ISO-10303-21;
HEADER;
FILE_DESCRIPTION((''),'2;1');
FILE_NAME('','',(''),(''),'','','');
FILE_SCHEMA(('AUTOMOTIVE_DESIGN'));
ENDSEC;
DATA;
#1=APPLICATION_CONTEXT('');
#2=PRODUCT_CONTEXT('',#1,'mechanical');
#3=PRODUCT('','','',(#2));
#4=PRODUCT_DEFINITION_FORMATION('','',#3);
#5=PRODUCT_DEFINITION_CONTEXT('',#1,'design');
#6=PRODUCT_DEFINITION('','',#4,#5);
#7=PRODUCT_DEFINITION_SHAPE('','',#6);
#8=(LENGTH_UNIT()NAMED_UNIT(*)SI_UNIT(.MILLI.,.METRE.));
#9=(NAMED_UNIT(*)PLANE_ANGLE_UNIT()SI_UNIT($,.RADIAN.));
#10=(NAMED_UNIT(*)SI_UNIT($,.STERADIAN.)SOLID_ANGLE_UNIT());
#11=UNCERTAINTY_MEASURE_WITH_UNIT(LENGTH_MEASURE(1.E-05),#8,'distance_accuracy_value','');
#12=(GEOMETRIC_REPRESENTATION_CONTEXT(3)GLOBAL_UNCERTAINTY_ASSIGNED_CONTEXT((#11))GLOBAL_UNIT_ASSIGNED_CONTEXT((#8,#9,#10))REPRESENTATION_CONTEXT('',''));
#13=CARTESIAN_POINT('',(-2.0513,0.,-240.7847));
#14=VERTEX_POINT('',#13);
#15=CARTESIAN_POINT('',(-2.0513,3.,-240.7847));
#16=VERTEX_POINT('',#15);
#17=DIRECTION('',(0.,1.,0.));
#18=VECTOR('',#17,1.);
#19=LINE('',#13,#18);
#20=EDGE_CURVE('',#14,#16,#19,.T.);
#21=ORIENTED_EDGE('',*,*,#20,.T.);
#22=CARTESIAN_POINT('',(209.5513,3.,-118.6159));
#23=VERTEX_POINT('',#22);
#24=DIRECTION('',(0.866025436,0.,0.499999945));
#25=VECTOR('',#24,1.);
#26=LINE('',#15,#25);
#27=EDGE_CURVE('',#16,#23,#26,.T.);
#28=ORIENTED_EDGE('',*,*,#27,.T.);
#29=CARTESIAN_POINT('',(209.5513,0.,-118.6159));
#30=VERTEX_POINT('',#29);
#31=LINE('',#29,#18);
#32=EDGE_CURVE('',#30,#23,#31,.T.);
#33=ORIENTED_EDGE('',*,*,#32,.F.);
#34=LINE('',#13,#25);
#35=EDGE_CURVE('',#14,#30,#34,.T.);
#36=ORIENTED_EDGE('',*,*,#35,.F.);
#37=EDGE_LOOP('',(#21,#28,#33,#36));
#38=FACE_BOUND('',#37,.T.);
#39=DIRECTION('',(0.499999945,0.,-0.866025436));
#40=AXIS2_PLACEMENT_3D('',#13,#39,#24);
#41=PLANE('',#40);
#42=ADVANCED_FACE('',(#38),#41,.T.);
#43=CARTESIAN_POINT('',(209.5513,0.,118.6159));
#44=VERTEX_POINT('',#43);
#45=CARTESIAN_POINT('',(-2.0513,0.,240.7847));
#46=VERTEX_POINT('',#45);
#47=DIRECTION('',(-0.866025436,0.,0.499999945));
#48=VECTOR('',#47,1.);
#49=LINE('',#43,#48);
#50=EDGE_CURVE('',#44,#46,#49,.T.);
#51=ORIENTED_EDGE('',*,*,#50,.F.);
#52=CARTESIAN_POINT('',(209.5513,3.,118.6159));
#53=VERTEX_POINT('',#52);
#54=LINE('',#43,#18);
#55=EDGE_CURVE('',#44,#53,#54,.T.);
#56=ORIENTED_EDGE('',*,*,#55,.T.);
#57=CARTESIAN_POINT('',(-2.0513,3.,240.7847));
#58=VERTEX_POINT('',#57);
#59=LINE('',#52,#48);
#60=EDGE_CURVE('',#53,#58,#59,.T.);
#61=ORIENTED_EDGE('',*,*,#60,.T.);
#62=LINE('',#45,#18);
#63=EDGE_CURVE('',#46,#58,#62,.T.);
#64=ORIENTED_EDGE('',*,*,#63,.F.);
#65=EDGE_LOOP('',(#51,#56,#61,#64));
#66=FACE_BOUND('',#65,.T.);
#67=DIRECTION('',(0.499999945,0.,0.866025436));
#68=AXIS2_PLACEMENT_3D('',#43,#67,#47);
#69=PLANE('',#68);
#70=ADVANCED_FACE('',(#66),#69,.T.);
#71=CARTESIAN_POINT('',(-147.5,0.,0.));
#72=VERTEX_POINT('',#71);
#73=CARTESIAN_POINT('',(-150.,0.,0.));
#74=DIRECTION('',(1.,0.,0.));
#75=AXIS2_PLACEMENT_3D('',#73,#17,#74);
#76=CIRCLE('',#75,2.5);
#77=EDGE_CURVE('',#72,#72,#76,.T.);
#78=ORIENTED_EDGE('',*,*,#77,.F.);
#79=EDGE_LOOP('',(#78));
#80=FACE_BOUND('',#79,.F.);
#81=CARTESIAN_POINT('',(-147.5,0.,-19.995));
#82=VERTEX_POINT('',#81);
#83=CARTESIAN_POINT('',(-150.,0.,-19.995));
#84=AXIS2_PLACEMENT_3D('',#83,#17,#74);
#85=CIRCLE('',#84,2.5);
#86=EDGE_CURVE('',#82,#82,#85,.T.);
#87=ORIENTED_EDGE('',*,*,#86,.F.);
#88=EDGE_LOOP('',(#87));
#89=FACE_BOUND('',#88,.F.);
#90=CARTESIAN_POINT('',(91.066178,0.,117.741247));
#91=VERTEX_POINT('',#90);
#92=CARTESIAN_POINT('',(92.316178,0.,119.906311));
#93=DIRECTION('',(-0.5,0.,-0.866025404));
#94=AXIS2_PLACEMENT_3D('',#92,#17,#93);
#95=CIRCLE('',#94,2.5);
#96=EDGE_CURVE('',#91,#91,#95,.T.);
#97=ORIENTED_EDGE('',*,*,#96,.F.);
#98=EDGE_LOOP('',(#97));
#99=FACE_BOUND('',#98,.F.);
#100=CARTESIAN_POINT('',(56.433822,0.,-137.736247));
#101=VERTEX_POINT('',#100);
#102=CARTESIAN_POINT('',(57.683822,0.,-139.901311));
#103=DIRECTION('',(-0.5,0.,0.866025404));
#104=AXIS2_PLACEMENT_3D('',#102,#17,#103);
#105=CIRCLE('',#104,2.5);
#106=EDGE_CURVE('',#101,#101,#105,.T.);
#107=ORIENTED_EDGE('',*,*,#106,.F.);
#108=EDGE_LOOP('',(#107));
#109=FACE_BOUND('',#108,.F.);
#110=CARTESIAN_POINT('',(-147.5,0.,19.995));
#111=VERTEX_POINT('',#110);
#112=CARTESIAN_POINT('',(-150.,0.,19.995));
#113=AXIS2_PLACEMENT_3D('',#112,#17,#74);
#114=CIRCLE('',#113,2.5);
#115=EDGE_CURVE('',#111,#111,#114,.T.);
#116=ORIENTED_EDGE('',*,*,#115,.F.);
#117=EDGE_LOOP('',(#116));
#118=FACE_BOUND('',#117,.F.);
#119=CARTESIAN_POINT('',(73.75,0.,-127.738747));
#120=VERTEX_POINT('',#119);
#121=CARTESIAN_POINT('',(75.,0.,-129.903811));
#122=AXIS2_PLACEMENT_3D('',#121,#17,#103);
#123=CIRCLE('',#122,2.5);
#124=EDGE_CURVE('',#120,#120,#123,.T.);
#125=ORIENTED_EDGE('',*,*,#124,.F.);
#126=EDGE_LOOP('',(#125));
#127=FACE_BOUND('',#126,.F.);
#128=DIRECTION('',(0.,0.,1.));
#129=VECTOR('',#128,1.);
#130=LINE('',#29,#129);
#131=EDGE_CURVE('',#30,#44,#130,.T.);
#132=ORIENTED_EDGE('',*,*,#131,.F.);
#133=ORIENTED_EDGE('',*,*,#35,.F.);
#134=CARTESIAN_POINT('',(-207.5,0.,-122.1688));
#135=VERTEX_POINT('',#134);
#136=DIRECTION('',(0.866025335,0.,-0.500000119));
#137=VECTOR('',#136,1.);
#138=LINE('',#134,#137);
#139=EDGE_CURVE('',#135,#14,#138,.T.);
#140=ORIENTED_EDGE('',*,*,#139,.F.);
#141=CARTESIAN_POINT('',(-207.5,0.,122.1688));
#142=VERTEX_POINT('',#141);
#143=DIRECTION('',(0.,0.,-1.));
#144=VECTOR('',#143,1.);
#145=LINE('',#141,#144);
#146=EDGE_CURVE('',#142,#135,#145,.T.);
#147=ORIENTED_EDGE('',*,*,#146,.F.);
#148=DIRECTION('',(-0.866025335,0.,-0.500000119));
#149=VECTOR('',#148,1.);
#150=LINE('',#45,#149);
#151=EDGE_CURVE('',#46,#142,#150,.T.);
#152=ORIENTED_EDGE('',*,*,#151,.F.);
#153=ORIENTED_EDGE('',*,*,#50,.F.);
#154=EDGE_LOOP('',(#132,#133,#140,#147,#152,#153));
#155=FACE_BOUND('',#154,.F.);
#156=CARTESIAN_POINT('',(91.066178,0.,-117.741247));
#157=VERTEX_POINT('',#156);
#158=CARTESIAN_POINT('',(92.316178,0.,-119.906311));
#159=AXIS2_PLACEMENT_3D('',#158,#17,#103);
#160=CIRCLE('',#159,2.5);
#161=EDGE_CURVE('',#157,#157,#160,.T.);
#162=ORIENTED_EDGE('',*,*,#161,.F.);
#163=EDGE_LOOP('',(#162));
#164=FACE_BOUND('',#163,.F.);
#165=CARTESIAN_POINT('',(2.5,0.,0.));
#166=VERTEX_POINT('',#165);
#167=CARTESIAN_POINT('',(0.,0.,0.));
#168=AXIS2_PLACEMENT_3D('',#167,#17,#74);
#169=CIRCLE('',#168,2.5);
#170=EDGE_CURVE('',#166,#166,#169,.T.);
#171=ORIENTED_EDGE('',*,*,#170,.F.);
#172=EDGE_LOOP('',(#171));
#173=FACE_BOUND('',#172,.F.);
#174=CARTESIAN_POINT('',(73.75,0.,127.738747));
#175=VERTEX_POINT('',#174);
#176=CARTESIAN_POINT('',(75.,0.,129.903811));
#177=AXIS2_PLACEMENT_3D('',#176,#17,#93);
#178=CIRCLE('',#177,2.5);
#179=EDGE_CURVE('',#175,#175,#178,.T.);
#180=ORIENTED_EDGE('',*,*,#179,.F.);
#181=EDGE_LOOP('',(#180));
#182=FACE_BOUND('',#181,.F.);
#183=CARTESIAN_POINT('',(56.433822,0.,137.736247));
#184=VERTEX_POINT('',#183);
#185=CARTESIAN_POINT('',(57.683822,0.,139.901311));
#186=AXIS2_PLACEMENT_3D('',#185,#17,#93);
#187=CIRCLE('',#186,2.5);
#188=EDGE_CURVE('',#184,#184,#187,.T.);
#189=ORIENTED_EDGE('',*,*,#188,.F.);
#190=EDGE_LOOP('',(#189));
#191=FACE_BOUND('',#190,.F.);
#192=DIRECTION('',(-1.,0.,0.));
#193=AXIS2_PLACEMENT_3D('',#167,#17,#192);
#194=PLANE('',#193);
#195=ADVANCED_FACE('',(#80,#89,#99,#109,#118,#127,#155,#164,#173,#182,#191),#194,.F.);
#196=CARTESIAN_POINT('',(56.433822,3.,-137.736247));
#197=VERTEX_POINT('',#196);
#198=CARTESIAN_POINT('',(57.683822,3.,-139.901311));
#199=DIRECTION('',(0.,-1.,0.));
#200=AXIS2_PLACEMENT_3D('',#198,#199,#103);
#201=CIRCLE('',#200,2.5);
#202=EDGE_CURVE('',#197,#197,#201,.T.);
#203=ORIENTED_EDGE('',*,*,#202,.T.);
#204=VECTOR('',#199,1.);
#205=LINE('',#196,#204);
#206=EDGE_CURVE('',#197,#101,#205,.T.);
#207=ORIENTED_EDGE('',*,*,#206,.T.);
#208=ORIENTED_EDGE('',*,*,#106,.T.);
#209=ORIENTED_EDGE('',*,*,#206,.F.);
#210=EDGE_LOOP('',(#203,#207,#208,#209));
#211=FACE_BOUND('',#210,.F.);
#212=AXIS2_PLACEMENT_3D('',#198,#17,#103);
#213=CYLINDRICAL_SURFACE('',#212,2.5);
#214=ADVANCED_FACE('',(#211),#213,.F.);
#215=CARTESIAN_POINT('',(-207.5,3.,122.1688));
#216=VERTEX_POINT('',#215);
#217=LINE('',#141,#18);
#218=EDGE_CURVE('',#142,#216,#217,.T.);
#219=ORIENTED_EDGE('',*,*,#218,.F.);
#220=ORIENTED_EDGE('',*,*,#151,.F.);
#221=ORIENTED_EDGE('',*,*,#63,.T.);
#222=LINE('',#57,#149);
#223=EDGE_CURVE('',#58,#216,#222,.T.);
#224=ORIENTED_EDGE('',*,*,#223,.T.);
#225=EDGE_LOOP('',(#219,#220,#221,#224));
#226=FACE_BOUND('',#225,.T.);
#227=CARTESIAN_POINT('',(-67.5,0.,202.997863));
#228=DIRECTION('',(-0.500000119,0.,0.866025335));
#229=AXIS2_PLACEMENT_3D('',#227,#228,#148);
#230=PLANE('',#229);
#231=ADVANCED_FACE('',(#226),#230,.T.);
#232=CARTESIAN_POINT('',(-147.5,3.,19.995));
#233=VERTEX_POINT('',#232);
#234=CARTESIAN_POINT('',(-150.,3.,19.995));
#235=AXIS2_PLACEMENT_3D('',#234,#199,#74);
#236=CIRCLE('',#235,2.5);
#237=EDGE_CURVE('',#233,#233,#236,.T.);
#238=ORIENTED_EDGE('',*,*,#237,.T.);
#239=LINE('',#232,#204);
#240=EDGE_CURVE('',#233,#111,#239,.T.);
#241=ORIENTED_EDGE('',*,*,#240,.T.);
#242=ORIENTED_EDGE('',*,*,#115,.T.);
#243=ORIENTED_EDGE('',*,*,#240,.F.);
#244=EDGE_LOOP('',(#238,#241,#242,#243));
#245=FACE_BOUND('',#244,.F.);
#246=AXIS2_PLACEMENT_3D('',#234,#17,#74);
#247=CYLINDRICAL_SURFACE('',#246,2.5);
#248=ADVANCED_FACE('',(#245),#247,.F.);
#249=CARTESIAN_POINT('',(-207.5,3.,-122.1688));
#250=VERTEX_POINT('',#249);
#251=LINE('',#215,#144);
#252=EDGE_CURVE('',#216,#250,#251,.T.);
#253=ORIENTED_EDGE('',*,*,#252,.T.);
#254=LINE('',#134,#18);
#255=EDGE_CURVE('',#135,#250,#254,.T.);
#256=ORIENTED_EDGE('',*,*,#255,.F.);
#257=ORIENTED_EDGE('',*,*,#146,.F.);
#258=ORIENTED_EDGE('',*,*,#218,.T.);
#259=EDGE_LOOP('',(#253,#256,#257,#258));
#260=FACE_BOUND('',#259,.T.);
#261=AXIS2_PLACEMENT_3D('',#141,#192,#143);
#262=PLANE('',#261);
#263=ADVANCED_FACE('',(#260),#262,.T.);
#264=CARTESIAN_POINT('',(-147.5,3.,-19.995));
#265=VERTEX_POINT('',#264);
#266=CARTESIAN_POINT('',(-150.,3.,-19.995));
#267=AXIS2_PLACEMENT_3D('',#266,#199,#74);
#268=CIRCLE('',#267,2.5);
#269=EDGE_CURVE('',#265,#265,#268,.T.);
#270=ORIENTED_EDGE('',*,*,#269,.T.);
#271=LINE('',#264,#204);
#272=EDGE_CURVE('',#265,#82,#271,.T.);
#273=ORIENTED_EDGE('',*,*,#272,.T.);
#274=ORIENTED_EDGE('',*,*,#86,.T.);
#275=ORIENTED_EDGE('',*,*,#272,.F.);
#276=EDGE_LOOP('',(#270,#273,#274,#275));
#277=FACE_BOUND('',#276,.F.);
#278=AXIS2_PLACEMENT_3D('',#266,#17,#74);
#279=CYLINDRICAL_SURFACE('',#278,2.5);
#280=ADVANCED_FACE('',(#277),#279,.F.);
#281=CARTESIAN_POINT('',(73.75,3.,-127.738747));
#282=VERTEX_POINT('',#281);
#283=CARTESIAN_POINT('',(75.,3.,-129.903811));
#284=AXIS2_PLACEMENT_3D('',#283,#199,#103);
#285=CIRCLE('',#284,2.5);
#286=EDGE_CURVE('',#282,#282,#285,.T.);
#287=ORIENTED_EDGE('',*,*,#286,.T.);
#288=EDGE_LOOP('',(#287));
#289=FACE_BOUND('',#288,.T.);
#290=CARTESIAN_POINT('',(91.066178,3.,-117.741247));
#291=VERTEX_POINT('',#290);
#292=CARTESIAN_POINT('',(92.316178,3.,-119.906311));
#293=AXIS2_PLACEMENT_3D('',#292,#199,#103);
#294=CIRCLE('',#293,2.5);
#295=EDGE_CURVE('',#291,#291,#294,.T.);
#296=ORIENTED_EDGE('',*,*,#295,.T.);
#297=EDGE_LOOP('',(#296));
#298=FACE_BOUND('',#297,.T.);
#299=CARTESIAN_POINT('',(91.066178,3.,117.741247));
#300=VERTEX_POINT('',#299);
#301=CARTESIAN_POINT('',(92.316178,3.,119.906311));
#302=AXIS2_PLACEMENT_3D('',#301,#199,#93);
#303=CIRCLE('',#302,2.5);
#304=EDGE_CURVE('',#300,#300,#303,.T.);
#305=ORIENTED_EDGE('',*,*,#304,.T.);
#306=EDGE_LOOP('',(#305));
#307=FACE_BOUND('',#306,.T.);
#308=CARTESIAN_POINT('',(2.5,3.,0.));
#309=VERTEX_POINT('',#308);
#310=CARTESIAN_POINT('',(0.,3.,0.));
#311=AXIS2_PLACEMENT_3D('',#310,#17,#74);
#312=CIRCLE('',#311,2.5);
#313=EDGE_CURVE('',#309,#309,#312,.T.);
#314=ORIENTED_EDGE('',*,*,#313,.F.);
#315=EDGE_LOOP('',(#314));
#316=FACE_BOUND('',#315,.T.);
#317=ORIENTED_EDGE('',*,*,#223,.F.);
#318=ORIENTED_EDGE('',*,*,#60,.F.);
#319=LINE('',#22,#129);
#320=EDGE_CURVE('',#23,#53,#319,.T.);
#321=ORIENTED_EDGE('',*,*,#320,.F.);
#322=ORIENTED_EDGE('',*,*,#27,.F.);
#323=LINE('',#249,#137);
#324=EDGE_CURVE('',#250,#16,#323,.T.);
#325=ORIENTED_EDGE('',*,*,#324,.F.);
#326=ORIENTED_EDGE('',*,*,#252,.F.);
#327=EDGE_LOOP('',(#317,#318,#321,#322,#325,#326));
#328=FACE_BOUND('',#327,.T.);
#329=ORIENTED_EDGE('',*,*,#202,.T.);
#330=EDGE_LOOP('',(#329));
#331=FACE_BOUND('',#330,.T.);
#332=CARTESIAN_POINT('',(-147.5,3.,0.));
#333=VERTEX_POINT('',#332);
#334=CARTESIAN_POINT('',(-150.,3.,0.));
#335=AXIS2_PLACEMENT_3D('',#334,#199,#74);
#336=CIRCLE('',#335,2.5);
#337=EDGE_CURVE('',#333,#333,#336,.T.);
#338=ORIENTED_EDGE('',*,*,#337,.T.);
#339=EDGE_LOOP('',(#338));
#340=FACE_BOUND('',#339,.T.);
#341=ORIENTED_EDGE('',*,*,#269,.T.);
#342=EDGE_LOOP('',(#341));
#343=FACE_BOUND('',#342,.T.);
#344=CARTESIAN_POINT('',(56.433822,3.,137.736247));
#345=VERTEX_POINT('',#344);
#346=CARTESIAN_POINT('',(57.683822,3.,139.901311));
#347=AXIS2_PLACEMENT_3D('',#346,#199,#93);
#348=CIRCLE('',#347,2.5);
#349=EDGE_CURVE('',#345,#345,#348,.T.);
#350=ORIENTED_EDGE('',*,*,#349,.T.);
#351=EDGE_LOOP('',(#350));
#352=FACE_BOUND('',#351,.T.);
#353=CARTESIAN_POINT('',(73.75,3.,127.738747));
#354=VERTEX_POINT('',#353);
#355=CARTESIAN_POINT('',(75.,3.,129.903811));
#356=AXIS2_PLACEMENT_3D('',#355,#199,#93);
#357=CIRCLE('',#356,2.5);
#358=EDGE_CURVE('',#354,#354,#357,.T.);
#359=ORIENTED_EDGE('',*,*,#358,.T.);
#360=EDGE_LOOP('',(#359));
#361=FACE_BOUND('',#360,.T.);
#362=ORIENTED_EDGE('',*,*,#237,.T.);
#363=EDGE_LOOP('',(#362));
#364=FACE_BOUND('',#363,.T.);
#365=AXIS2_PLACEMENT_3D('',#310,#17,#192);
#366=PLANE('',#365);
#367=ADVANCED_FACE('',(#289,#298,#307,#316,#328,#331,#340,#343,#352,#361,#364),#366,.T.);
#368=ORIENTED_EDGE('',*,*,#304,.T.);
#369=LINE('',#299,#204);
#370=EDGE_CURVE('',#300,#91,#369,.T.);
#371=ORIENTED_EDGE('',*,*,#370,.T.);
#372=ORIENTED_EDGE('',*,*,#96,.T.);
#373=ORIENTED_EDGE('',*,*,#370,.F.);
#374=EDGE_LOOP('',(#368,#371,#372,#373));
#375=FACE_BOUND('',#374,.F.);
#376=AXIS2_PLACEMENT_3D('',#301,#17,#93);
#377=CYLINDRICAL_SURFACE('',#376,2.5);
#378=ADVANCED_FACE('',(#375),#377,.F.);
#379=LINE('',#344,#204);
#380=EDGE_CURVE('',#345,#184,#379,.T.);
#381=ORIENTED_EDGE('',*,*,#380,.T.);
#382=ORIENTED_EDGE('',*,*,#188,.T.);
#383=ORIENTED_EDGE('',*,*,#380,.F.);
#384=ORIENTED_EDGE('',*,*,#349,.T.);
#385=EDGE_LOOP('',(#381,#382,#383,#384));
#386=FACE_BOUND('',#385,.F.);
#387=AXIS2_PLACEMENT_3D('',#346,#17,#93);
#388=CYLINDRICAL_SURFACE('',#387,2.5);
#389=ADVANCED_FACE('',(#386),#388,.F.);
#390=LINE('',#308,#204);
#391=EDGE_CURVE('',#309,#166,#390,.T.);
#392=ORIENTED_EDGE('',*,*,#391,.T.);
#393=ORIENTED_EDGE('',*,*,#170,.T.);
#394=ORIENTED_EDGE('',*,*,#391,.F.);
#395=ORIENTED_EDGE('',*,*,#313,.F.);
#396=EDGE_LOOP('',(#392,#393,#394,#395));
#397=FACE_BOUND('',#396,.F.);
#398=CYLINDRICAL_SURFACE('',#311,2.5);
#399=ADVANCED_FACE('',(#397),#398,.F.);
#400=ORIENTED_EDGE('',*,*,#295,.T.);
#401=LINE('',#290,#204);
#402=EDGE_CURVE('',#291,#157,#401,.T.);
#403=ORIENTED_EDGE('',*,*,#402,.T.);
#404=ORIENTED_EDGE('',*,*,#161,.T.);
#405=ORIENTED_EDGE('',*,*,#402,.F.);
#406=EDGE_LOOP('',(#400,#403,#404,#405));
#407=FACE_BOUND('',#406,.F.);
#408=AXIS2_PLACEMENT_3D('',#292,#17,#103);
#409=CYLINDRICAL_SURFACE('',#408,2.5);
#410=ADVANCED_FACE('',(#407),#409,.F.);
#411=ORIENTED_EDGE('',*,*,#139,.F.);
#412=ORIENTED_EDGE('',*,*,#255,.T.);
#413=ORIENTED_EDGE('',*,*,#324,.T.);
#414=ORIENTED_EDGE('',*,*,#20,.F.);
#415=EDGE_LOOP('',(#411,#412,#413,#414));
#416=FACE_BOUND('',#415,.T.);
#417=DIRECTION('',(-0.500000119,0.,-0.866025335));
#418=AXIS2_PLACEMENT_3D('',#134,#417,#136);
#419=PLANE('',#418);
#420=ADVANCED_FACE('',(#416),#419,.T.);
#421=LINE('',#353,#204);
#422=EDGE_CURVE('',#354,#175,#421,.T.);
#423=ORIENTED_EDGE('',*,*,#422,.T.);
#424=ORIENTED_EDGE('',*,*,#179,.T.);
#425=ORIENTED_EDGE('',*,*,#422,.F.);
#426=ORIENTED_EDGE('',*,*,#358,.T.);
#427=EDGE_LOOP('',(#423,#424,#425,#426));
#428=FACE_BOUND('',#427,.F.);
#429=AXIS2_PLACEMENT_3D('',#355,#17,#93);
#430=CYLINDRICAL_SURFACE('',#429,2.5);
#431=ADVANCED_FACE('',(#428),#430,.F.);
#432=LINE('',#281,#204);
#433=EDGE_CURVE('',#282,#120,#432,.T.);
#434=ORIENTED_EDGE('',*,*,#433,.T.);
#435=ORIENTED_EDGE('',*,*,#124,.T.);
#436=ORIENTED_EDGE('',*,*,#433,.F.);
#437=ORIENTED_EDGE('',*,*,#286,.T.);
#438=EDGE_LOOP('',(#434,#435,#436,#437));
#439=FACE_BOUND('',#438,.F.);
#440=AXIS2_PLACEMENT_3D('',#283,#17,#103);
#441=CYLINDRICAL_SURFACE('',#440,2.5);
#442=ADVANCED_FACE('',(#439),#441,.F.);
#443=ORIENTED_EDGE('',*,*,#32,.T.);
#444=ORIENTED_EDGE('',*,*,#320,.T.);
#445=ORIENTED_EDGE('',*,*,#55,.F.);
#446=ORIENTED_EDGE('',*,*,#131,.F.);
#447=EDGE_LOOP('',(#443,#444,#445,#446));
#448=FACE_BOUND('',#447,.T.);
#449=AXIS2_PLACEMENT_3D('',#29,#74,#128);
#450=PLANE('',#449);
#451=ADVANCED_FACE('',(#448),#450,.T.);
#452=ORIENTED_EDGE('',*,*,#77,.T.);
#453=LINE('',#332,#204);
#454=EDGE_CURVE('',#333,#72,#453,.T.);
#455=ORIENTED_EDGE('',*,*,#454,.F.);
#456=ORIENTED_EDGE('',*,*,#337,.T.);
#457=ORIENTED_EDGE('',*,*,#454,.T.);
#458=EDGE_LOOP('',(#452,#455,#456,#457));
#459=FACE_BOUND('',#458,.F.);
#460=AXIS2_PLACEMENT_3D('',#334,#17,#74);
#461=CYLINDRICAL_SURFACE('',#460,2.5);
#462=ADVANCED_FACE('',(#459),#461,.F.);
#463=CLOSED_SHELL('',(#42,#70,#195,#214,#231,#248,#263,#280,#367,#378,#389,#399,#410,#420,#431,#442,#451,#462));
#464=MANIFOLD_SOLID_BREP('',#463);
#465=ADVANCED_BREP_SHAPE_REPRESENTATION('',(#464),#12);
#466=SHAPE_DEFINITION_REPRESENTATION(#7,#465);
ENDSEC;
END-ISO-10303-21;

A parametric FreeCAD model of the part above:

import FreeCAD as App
import Part
import Sketcher

V = App.Vector
Q = App.Units.Quantity


def add_polygon(sketch, points):
    """Adds a closed chain of lines whose ends are joined by coincident constraints."""
    first, n = sketch.GeometryCount, len(points)
    for a, b in zip(points, points[1:] + points[:1]):
        sketch.addGeometry(Part.LineSegment(App.Vector(*a, 0), App.Vector(*b, 0)), False)
    for i in range(n):
        sketch.addConstraint(Sketcher.Constraint("Coincident", first + i, 2, first + (i + 1) % n, 1))

doc = App.newDocument("Part")
body = doc.addObject("PartDesign::Body", "Body")

# Sketch on XZ plane
sketch1 = body.newObject("Sketcher::SketchObject", "Sketch")
sketch1.AttachmentSupport = (doc.getObject("XZ_Plane"), [""])
sketch1.MapMode = "FlatFace"
add_polygon(sketch1, [(-207.5, 122.1688), (-2.0513, 240.7847), (209.5513, 118.6159), (209.5513, -118.6159), (-2.0513, -240.7847), (-207.5, -122.1688)])  # lines 0-5
sketch1.addConstraint([
    Sketcher.Constraint("Vertical", 2),
    Sketcher.Constraint("Vertical", 5),
    Sketcher.Constraint("Symmetric", 0, 2, 3, 2, -1),
    Sketcher.Constraint("Parallel", 0, 3),
    Sketcher.Constraint("Parallel", 1, 4),
    Sketcher.Constraint("Equal", 1, 3),
    Sketcher.Constraint("Angle", 0, Q("30 deg")),
    Sketcher.Constraint("DistanceX", 4, 2, -1, 1, 207.5),
    Sketcher.Constraint("DistanceY", 2, 2, 2, 1, 237.2318),
    Sketcher.Constraint("DistanceY", 5, 1, 5, 2, 244.3376),
    Sketcher.Constraint("DistanceY", 3, 2, 4, 2, 118.616),
])
pad1 = body.newObject("PartDesign::Pad", "Pad")
pad1.Profile = sketch1
pad1.Length = 3
pad1.Reversed = True

# Sketch on XZ plane
sketch2 = body.newObject("Sketcher::SketchObject", "Sketch001")
sketch2.AttachmentSupport = (doc.getObject("XZ_Plane"), [""])
sketch2.MapMode = "FlatFace"
sketch2.AttachmentOffset = App.Placement(V(0, 0, -3), App.Rotation())
sketch2.addGeometry([
    Part.Circle(V(-150, 0, 0), V(0, 0, 1), 2.5),
    Part.Circle(V(0, 0, 0), V(0, 0, 1), 2.5),
    Part.Circle(V(-150, 19.995, 0), V(0, 0, 1), 2.5),
    Part.Circle(V(-150, -19.995, 0), V(0, 0, 1), 2.5),
], False)
sketch2.addConstraint([
    Sketcher.Constraint("Coincident", 1, 3, -1, 1),
    Sketcher.Constraint("Equal", 0, 1),
    Sketcher.Constraint("Equal", 1, 2),
    Sketcher.Constraint("Equal", 2, 3),
    Sketcher.Constraint("Symmetric", 2, 3, 3, 3, -1),
    Sketcher.Constraint("PointOnObject", 0, 3, -1),
    Sketcher.Constraint("Vertical", 0, 3, 2, 3),
    Sketcher.Constraint("Diameter", 0, 5.0),
    Sketcher.Constraint("DistanceX", 0, 3, -1, 1, 150.0),
    Sketcher.Constraint("DistanceY", -1, 1, 2, 3, 19.995),
])
pocket1 = body.newObject("PartDesign::Pocket", "Pocket")
pocket1.Profile = sketch2
pocket1.Length = 3
pocket1.Reversed = True
doc.recompute()

polarpattern = body.newObject("PartDesign::PolarPattern", "PolarPattern")
polarpattern.Originals = [pocket1]
polarpattern.Axis = (doc.getObject("Y_Axis"), [""])
polarpattern.Angle = 360
polarpattern.Occurrences = 3
body.Tip = polarpattern

doc.recompute()
